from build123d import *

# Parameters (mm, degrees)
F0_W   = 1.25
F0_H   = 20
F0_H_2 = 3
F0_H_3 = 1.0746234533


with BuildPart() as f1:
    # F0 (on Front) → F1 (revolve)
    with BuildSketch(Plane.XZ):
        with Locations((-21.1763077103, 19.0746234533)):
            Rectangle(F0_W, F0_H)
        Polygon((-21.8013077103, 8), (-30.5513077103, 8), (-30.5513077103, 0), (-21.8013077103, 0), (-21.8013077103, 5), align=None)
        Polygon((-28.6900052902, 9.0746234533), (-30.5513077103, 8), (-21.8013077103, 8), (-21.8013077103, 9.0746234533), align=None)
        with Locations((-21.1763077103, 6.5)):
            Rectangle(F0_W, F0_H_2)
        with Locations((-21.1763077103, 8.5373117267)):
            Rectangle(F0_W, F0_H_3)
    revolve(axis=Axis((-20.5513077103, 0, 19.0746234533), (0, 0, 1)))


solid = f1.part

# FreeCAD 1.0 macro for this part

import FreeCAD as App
import Part
import Sketcher
Q = App.Units.Quantity

doc = App.newDocument("Part")
body = doc.addObject("PartDesign::Body", "Body")

sketch1 = doc.addObject("Sketcher::SketchObject", "Sketch")
body.addObject(sketch1)
sketch1.AttachmentSupport = (doc.XZ_Plane, [""])
sketch1.MapMode = "FlatFace"
sketch1.addGeometry([
    Part.LineSegment(App.Vector(-21.801308, 29.074623, 0), App.Vector(-21.801308, 9.074623, 0)),
    Part.LineSegment(App.Vector(-21.801308, 9.074623, 0), App.Vector(-28.690005, 9.074623, 0)),
    Part.LineSegment(App.Vector(-28.690005, 9.074623, 0), App.Vector(-30.551308, 8, 0)),
    Part.LineSegment(App.Vector(-30.551308, 8, 0), App.Vector(-30.551308, 0, 0)),
    Part.LineSegment(App.Vector(-30.551308, 0, 0), App.Vector(-21.801308, 0, 0)),
    Part.LineSegment(App.Vector(-21.801308, 0, 0), App.Vector(-21.801308, 5, 0)),
    Part.LineSegment(App.Vector(-21.801308, 5, 0), App.Vector(-20.551308, 5, 0)),
    Part.LineSegment(App.Vector(-20.551308, 5, 0), App.Vector(-20.551308, 29.074623, 0)),
    Part.LineSegment(App.Vector(-20.551308, 29.074623, 0), App.Vector(-21.801308, 29.074623, 0)),
], False)
sketch1.addGeometry(Part.LineSegment(App.Vector(-20.551308, 0, 0), App.Vector(-20.551308, 29.074623, 0)), True)
sketch1.addConstraint([
    Sketcher.Constraint("Coincident", 0, 2, 1, 1),
    Sketcher.Constraint("Coincident", 1, 2, 2, 1),
    Sketcher.Constraint("Coincident", 2, 2, 3, 1),
    Sketcher.Constraint("Coincident", 3, 2, 4, 1),
    Sketcher.Constraint("Coincident", 4, 2, 5, 1),
    Sketcher.Constraint("Coincident", 5, 2, 6, 1),
    Sketcher.Constraint("Coincident", 6, 2, 7, 1),
    Sketcher.Constraint("Coincident", 7, 2, 8, 1),
    Sketcher.Constraint("Coincident", 8, 2, 0, 1),
    Sketcher.Constraint("Vertical", 0),
    Sketcher.Constraint("Horizontal", 1),
    Sketcher.Constraint("Vertical", 3),
    Sketcher.Constraint("Horizontal", 4),
    Sketcher.Constraint("Vertical", 5),
    Sketcher.Constraint("Horizontal", 6),
    Sketcher.Constraint("Vertical", 7),
    Sketcher.Constraint("Horizontal", 8),
    Sketcher.Constraint("Vertical", 9),
    Sketcher.Constraint("Coincident", 9, 2, 7, 2),
    Sketcher.Constraint("PointOnObject", 3, 2, -1),
    Sketcher.Constraint("PointOnObject", 9, 1, -1),
    Sketcher.Constraint("Vertical", 0, 2, 4, 2),
    Sketcher.Constraint("DistanceY", 0, 2, 0, 1, Q("20 mm")),
    Sketcher.Constraint("DistanceY", 3, 2, 3, 1, Q("8 mm")),
    Sketcher.Constraint("DistanceY", 5, 1, 5, 2, Q("5 mm")),
    Sketcher.Constraint("Angle", 2, Q("-150 deg")),
    Sketcher.Constraint("DistanceX", 2, 2, 6, 2, Q("10 mm")),
    Sketcher.Constraint("DistanceX", 4, 1, 4, 2, Q("8.75 mm")),
    Sketcher.Constraint("DistanceX", 1, 2, 1, 1, Q("6.888698 mm")),
    Sketcher.Constraint("DistanceX", 0, 2, -1, 1, Q("21.801308 mm")),
])
revolution = doc.addObject("PartDesign::Revolution", "Revolution")
body.addObject(revolution)
revolution.Profile = sketch1
revolution.ReferenceAxis = (sketch1, ["Axis0"])
revolution.Angle = 360

doc.recompute()
